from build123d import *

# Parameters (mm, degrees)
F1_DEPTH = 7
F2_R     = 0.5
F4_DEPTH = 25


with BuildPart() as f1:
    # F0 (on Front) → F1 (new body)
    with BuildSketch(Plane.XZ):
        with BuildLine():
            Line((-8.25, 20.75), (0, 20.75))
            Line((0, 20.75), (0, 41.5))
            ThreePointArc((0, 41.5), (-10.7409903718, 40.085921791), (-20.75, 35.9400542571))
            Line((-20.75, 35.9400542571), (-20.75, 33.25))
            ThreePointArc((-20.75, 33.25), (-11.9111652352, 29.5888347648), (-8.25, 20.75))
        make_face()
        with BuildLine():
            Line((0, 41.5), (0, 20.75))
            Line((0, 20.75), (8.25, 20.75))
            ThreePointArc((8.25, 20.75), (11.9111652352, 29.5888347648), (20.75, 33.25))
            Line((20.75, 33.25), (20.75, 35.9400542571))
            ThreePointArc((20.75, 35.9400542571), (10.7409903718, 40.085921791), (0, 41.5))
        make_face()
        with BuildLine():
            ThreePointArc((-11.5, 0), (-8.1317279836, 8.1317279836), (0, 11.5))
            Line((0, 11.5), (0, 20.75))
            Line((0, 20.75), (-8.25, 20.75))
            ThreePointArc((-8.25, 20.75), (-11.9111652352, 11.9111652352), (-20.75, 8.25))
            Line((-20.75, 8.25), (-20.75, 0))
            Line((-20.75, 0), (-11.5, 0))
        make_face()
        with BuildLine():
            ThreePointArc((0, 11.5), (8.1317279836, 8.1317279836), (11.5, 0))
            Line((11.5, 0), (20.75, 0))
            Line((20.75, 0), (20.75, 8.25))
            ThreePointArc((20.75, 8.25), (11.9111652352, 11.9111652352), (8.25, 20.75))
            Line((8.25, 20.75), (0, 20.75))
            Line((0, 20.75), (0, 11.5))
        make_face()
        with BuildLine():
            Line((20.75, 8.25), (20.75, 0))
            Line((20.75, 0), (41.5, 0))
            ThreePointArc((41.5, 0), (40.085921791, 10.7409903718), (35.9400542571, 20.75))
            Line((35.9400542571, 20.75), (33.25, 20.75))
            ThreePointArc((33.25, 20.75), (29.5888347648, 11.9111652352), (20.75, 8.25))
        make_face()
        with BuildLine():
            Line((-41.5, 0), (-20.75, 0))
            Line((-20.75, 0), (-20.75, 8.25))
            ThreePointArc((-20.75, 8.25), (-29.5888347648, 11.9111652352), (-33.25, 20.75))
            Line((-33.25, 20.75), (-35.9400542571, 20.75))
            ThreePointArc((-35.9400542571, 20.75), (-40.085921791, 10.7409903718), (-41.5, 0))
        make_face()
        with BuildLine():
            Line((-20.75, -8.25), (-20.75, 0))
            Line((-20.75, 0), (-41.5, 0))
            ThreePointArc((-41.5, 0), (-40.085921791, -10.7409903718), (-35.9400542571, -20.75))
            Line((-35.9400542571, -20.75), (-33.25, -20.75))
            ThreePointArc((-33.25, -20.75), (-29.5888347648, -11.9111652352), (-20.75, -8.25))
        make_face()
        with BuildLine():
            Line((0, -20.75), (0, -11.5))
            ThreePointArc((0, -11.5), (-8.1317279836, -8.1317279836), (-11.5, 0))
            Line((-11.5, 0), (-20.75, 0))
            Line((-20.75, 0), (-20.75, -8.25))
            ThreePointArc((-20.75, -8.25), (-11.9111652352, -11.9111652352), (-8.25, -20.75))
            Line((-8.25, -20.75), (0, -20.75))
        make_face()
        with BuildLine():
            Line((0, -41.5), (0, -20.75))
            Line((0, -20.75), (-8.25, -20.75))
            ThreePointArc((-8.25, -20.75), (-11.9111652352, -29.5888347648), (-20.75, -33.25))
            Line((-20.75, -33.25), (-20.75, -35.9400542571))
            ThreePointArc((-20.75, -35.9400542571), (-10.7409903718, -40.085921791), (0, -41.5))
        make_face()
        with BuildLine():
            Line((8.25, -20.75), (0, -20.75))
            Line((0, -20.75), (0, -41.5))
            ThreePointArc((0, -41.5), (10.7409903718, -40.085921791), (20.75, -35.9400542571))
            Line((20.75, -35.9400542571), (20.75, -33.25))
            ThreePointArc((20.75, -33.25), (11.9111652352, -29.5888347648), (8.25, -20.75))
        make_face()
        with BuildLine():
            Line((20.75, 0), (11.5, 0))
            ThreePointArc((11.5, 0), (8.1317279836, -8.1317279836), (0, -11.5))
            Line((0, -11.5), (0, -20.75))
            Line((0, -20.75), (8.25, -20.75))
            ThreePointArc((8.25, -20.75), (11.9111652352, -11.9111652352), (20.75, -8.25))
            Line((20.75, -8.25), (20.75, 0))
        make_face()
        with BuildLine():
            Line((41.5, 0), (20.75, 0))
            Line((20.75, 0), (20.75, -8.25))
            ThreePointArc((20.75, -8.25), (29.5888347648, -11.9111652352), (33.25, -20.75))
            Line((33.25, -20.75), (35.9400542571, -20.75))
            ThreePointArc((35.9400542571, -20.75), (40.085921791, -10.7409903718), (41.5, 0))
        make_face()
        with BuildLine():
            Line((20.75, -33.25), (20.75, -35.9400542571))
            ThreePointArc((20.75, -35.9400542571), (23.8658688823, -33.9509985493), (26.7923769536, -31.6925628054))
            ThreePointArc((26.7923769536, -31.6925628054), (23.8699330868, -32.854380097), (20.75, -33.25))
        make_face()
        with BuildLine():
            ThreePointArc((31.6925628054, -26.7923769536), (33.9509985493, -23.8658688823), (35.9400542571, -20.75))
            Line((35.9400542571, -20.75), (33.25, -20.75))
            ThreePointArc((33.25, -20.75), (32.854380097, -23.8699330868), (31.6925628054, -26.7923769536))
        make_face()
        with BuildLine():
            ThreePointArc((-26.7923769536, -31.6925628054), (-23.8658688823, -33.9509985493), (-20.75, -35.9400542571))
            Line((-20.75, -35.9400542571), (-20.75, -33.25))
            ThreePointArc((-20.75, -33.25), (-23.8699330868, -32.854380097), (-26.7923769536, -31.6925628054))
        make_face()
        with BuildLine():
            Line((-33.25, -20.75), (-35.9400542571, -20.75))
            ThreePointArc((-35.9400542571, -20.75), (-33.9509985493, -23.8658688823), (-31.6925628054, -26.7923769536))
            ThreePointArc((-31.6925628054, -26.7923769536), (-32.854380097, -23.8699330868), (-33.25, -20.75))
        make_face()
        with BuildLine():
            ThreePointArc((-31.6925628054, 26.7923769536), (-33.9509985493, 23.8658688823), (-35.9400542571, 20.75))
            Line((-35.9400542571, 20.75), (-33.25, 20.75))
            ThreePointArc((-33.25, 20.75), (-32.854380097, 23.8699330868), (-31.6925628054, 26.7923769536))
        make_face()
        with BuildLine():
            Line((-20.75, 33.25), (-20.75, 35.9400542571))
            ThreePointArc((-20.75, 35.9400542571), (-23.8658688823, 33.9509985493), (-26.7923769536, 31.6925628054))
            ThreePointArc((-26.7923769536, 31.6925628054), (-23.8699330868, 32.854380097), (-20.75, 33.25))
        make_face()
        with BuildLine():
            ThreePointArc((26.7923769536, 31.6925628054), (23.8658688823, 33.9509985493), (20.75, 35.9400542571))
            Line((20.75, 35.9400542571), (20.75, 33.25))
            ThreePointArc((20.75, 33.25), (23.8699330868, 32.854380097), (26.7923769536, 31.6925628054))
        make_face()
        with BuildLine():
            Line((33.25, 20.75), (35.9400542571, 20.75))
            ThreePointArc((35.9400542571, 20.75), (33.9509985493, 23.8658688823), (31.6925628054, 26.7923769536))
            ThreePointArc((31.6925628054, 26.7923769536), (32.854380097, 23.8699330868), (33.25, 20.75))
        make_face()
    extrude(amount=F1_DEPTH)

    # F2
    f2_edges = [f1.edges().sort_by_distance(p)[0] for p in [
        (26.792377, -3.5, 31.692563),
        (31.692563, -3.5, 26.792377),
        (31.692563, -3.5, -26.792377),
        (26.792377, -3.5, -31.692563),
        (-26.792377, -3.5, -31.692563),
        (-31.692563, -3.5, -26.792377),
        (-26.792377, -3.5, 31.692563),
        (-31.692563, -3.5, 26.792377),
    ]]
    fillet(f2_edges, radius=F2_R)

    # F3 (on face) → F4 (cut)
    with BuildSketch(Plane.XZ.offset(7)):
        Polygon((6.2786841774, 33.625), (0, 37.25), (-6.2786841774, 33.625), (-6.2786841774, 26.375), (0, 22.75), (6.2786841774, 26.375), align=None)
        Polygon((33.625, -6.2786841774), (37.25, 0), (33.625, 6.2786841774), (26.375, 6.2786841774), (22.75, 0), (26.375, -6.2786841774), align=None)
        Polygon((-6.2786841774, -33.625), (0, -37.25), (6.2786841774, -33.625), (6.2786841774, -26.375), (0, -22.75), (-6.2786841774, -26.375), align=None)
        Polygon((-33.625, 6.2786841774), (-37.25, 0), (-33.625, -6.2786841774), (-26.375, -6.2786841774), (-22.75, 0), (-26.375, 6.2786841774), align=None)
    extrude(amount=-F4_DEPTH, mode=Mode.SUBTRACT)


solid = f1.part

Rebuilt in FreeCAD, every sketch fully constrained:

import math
import FreeCAD as App
import Part
import Sketcher
Q = App.Units.Quantity


def edges_at(feature, points):
    """Names of the edges that pass closest to the given points."""
    edges = feature.Shape.Edges
    near = lambda p: min(range(len(edges)), key=lambda i: edges[i].distToShape(Part.Vertex(*p))[0])
    return sorted({f"Edge{near(p) + 1}" for p in points})

doc = App.newDocument("Part")
body = doc.addObject("PartDesign::Body", "Body")

sketch1 = doc.addObject("Sketcher::SketchObject", "Sketch")
body.addObject(sketch1)
sketch1.AttachmentSupport = (doc.XZ_Plane, [""])
sketch1.MapMode = "FlatFace"
sketch1.addGeometry([
    Part.ArcOfCircle(Part.Circle(App.Vector(20.75, 20.75, 0), App.Vector(0, 0, 1), 12.5), math.radians(90), math.radians(180)),
    Part.ArcOfCircle(Part.Circle(App.Vector(20.75, 20.75, 0), App.Vector(0, 0, 1), 12.5), math.radians(61.092946), math.radians(90)),
    Part.ArcOfCircle(Part.Circle(App.Vector(0, 0, 0), App.Vector(0, 0, 1), 41.5), math.radians(49.789365), math.radians(60)),
    Part.ArcOfCircle(Part.Circle(App.Vector(0, 0, 0), App.Vector(0, 0, 1), 41.5), math.radians(60), math.radians(90)),
    Part.ArcOfCircle(Part.Circle(App.Vector(0, 0, 0), App.Vector(0, 0, 1), 41.5), math.radians(90), math.radians(120)),
    Part.ArcOfCircle(Part.Circle(App.Vector(0, 0, 0), App.Vector(0, 0, 1), 41.5), math.radians(120), math.radians(130.210635)),
    Part.ArcOfCircle(Part.Circle(App.Vector(-20.75, 20.75, 0), App.Vector(0, 0, 1), 12.5), math.radians(90), math.radians(118.907054)),
    Part.ArcOfCircle(Part.Circle(App.Vector(-20.75, 20.75, 0), App.Vector(0, 0, 1), 12.5), math.radians(0), math.radians(90)),
    Part.ArcOfCircle(Part.Circle(App.Vector(-20.75, 20.75, 0), App.Vector(0, 0, 1), 12.5), math.radians(-90), math.radians(0)),
    Part.ArcOfCircle(Part.Circle(App.Vector(-20.75, 20.75, 0), App.Vector(0, 0, 1), 12.5), math.radians(180), math.radians(270)),
    Part.ArcOfCircle(Part.Circle(App.Vector(-20.75, 20.75, 0), App.Vector(0, 0, 1), 12.5), math.radians(151.092946), math.radians(180)),
    Part.ArcOfCircle(Part.Circle(App.Vector(0, 0, 0), App.Vector(0, 0, 1), 41.5), math.radians(139.789365), math.radians(150)),
    Part.ArcOfCircle(Part.Circle(App.Vector(0, 0, 0), App.Vector(0, 0, 1), 41.5), math.radians(150), math.radians(180)),
    Part.ArcOfCircle(Part.Circle(App.Vector(0, 0, 0), App.Vector(0, 0, 1), 41.5), math.radians(180), math.radians(210)),
    Part.ArcOfCircle(Part.Circle(App.Vector(0, 0, 0), App.Vector(0, 0, 1), 41.5), math.radians(-150), math.radians(-139.789365)),
    Part.ArcOfCircle(Part.Circle(App.Vector(-20.75, -20.75, 0), App.Vector(0, 0, 1), 12.5), math.radians(180), math.radians(208.907054)),
    Part.ArcOfCircle(Part.Circle(App.Vector(-20.75, -20.75, 0), App.Vector(0, 0, 1), 12.5), math.radians(90), math.radians(180)),
    Part.ArcOfCircle(Part.Circle(App.Vector(-20.75, -20.75, 0), App.Vector(0, 0, 1), 12.5), math.radians(0), math.radians(90)),
    Part.ArcOfCircle(Part.Circle(App.Vector(-20.75, -20.75, 0), App.Vector(0, 0, 1), 12.5), math.radians(-90), math.radians(0)),
    Part.ArcOfCircle(Part.Circle(App.Vector(-20.75, -20.75, 0), App.Vector(0, 0, 1), 12.5), math.radians(-118.907054), math.radians(-90)),
    Part.ArcOfCircle(Part.Circle(App.Vector(0, 0, 0), App.Vector(0, 0, 1), 41.5), math.radians(-130.210635), math.radians(-120)),
    Part.ArcOfCircle(Part.Circle(App.Vector(0, 0, 0), App.Vector(0, 0, 1), 41.5), math.radians(-120), math.radians(-90)),
    Part.ArcOfCircle(Part.Circle(App.Vector(0, 0, 0), App.Vector(0, 0, 1), 41.5), math.radians(-90), math.radians(-60)),
    Part.ArcOfCircle(Part.Circle(App.Vector(0, 0, 0), App.Vector(0, 0, 1), 41.5), math.radians(-60), math.radians(-49.789365)),
    Part.ArcOfCircle(Part.Circle(App.Vector(20.75, -20.75, 0), App.Vector(0, 0, 1), 12.5), math.radians(-90), math.radians(-61.092946)),
    Part.ArcOfCircle(Part.Circle(App.Vector(20.75, -20.75, 0), App.Vector(0, 0, 1), 12.5), math.radians(180), math.radians(270)),
    Part.ArcOfCircle(Part.Circle(App.Vector(20.75, -20.75, 0), App.Vector(0, 0, 1), 12.5), math.radians(90), math.radians(180)),
    Part.ArcOfCircle(Part.Circle(App.Vector(20.75, -20.75, 0), App.Vector(0, 0, 1), 12.5), math.radians(0), math.radians(90)),
    Part.ArcOfCircle(Part.Circle(App.Vector(20.75, -20.75, 0), App.Vector(0, 0, 1), 12.5), math.radians(-28.907054), math.radians(0)),
    Part.ArcOfCircle(Part.Circle(App.Vector(0, 0, 0), App.Vector(0, 0, 1), 41.5), math.radians(-40.210635), math.radians(-30)),
    Part.ArcOfCircle(Part.Circle(App.Vector(0, 0, 0), App.Vector(0, 0, 1), 41.5), math.radians(-30), math.radians(0)),
    Part.ArcOfCircle(Part.Circle(App.Vector(0, 0, 0), App.Vector(0, 0, 1), 41.5), math.radians(0), math.radians(30)),
    Part.ArcOfCircle(Part.Circle(App.Vector(0, 0, 0), App.Vector(0, 0, 1), 41.5), math.radians(30), math.radians(40.210635)),
    Part.ArcOfCircle(Part.Circle(App.Vector(20.75, 20.75, 0), App.Vector(0, 0, 1), 12.5), math.radians(0), math.radians(28.907054)),
    Part.ArcOfCircle(Part.Circle(App.Vector(20.75, 20.75, 0), App.Vector(0, 0, 1), 12.5), math.radians(-90), math.radians(0)),
    Part.ArcOfCircle(Part.Circle(App.Vector(20.75, 20.75, 0), App.Vector(0, 0, 1), 12.5), math.radians(180), math.radians(270)),
    Part.ArcOfCircle(Part.Circle(App.Vector(0, 0, 0), App.Vector(0, 0, 1), 11.5), math.radians(180), math.radians(270)),
    Part.ArcOfCircle(Part.Circle(App.Vector(0, 0, 0), App.Vector(0, 0, 1), 11.5), math.radians(90), math.radians(180)),
    Part.ArcOfCircle(Part.Circle(App.Vector(0, 0, 0), App.Vector(0, 0, 1), 11.5), math.radians(0), math.radians(90)),
    Part.ArcOfCircle(Part.Circle(App.Vector(0, 0, 0), App.Vector(0, 0, 1), 11.5), math.radians(-90), math.radians(0)),
], False)
sketch1.addConstraint([
    Sketcher.Constraint("Tangent", 0, 1, 1, 2),
    Sketcher.Constraint("Coincident", 1, 1, 2, 1),
    Sketcher.Constraint("Tangent", 2, 2, 3, 1),
    Sketcher.Constraint("Tangent", 3, 2, 4, 1),
    Sketcher.Constraint("Tangent", 4, 2, 5, 1),
    Sketcher.Constraint("Coincident", 5, 2, 6, 2),
    Sketcher.Constraint("Tangent", 6, 1, 7, 2),
    Sketcher.Constraint("Tangent", 7, 1, 8, 2),
    Sketcher.Constraint("Tangent", 8, 1, 9, 2),
    Sketcher.Constraint("Tangent", 9, 1, 10, 2),
    Sketcher.Constraint("Coincident", 10, 1, 11, 1),
    Sketcher.Constraint("Tangent", 11, 2, 12, 1),
    Sketcher.Constraint("Tangent", 12, 2, 13, 1),
    Sketcher.Constraint("Tangent", 13, 2, 14, 1),
    Sketcher.Constraint("Coincident", 14, 2, 15, 2),
    Sketcher.Constraint("Tangent", 15, 1, 16, 2),
    Sketcher.Constraint("Tangent", 16, 1, 17, 2),
    Sketcher.Constraint("Tangent", 17, 1, 18, 2),
    Sketcher.Constraint("Tangent", 18, 1, 19, 2),
    Sketcher.Constraint("Coincident", 19, 1, 20, 1),
    Sketcher.Constraint("Tangent", 20, 2, 21, 1),
    Sketcher.Constraint("Tangent", 21, 2, 22, 1),
    Sketcher.Constraint("Tangent", 22, 2, 23, 1),
    Sketcher.Constraint("Coincident", 23, 2, 24, 2),
    Sketcher.Constraint("Tangent", 24, 1, 25, 2),
    Sketcher.Constraint("Tangent", 25, 1, 26, 2),
    Sketcher.Constraint("Tangent", 26, 1, 27, 2),
    Sketcher.Constraint("Tangent", 27, 1, 28, 2),
    Sketcher.Constraint("Coincident", 28, 1, 29, 1),
    Sketcher.Constraint("Tangent", 29, 2, 30, 1),
    Sketcher.Constraint("Tangent", 30, 2, 31, 1),
    Sketcher.Constraint("Tangent", 31, 2, 32, 1),
    Sketcher.Constraint("Coincident", 32, 2, 33, 2),
    Sketcher.Constraint("Tangent", 33, 1, 34, 2),
    Sketcher.Constraint("Tangent", 34, 1, 35, 2),
    Sketcher.Constraint("Tangent", 35, 1, 0, 2),
    Sketcher.Constraint("Tangent", 36, 1, 37, 2),
    Sketcher.Constraint("Tangent", 37, 1, 38, 2),
    Sketcher.Constraint("Tangent", 38, 1, 39, 2),
    Sketcher.Constraint("Tangent", 39, 1, 36, 2),
    Sketcher.Constraint("Coincident", 2, 3, -1, 1),
    Sketcher.Constraint("Coincident", 4, 3, -1, 1),
    Sketcher.Constraint("Coincident", 11, 3, -1, 1),
    Sketcher.Constraint("Coincident", 13, 3, -1, 1),
    Sketcher.Constraint("Coincident", 20, 3, -1, 1),
    Sketcher.Constraint("Coincident", 22, 3, -1, 1),
    Sketcher.Constraint("Coincident", 29, 3, -1, 1),
    Sketcher.Constraint("Coincident", 31, 3, -1, 1),
    Sketcher.Constraint("Coincident", 36, 3, -1, 1),
    Sketcher.Constraint("Coincident", 8, 3, 6, 3),
    Sketcher.Constraint("Coincident", 10, 3, 6, 3),
    Sketcher.Constraint("Coincident", 17, 3, 15, 3),
    Sketcher.Constraint("Coincident", 19, 3, 15, 3),
    Sketcher.Constraint("Coincident", 26, 3, 24, 3),
    Sketcher.Constraint("Coincident", 28, 3, 24, 3),
    Sketcher.Constraint("Coincident", 33, 3, 0, 3),
    Sketcher.Constraint("Equal", 0, 1),
    Sketcher.Constraint("Equal", 4, 5),
    Sketcher.Constraint("Equal", 1, 6),
    Sketcher.Constraint("Equal", 5, 11),
    Sketcher.Constraint("Equal", 13, 14),
    Sketcher.Constraint("Equal", 10, 15),
    Sketcher.Constraint("Equal", 14, 20),
    Sketcher.Constraint("Equal", 22, 23),
    Sketcher.Constraint("Equal", 19, 24),
    Sketcher.Constraint("Equal", 23, 29),
    Sketcher.Constraint("Equal", 31, 32),
    Sketcher.Constraint("Equal", 28, 33),
    Sketcher.Constraint("Equal", 36, 37),
    Sketcher.Constraint("Symmetric", 0, 3, 15, 3, -1, 1),
    Sketcher.Constraint("Symmetric", 6, 3, 24, 3, -1, 1),
    Sketcher.Constraint("Symmetric", 0, 3, 6, 3, -2),
    Sketcher.Constraint("PointOnObject", 3, 2, -2),
    Sketcher.Constraint("PointOnObject", 12, 2, -1),
    Sketcher.Constraint("PointOnObject", 21, 2, -2),
    Sketcher.Constraint("PointOnObject", 30, 2, -1),
    Sketcher.Constraint("PointOnObject", 36, 1, -1),
    Sketcher.Constraint("PointOnObject", 37, 1, -2),
    Sketcher.Constraint("PointOnObject", 38, 1, -1),
    Sketcher.Constraint("PointOnObject", 39, 1, -2),
    Sketcher.Constraint("Horizontal", 2, 2, 4, 2),
    Sketcher.Constraint("Horizontal", 35, 3, 7, 1),
    Sketcher.Constraint("Horizontal", 7, 1, 9, 1),
    Sketcher.Constraint("Horizontal", 9, 1, 11, 2),
    Sketcher.Constraint("Horizontal", 28, 3, 13, 2),
    Sketcher.Constraint("Horizontal", 13, 2, 15, 1),
    Sketcher.Constraint("Horizontal", 15, 1, 17, 1),
    Sketcher.Constraint("Horizontal", 20, 2, 22, 2),
    Sketcher.Constraint("Horizontal", 17, 1, 25, 1),
    Sketcher.Constraint("Horizontal", 25, 1, 27, 1),
    Sketcher.Constraint("Horizontal", 27, 1, 29, 2),
    Sketcher.Constraint("Horizontal", 11, 2, 31, 2),
    Sketcher.Constraint("Horizontal", 31, 2, 33, 1),
    Sketcher.Constraint("Horizontal", 33, 1, 35, 1),
    Sketcher.Constraint("Vertical", 35, 3, 0, 1),
    Sketcher.Constraint("Vertical", 0, 1, 2, 2),
    Sketcher.Constraint("Vertical", 4, 2, 6, 1),
    Sketcher.Constraint("Vertical", 6, 1, 8, 1),
    Sketcher.Constraint("Vertical", 8, 1, 16, 1),
    Sketcher.Constraint("Vertical", 16, 1, 18, 1),
    Sketcher.Constraint("Vertical", 18, 1, 20, 2),
    Sketcher.Constraint("Vertical", 22, 2, 24, 1),
    Sketcher.Constraint("Vertical", 24, 1, 26, 1),
    Sketcher.Constraint("Vertical", 26, 1, 34, 1),
    Sketcher.Constraint("Radius", 0, Q("12.5 mm")),
    Sketcher.Constraint("Radius", 2, Q("41.5 mm")),
    Sketcher.Constraint("Radius", 36, Q("11.5 mm")),
    Sketcher.Constraint("DistanceX", -1, 1, 0, 3, Q("20.75 mm")),
    Sketcher.Constraint("DistanceY", -1, 1, 0, 3, Q("20.75 mm")),
])
pad1 = doc.addObject("PartDesign::Pad", "Pad")
body.addObject(pad1)
pad1.Profile = sketch1
pad1.Length = 7
doc.recompute()

fillet = doc.addObject("PartDesign::Fillet", "Fillet")
body.addObject(fillet)
fillet.Base = (pad1, edges_at(pad1, [
    (26.792, -3.5, 31.693),
    (31.693, -3.5, 26.792),
    (31.693, -3.5, -26.792),
    (26.792, -3.5, -31.693),
    (-26.792, -3.5, -31.693),
    (-31.693, -3.5, -26.792),
    (-26.792, -3.5, 31.693),
    (-31.693, -3.5, 26.792),
]))
fillet.Radius = 0.5

sketch2 = doc.addObject("Sketcher::SketchObject", "Sketch001")
body.addObject(sketch2)
sketch2.AttachmentSupport = (doc.XZ_Plane, [""])
sketch2.MapMode = "FlatFace"
sketch2.AttachmentOffset = App.Placement(App.Vector(0, 0, 7), App.Rotation())
sketch2.addGeometry([
    Part.LineSegment(App.Vector(6.278684, 33.625, 0), App.Vector(0, 37.25, 0)),
    Part.LineSegment(App.Vector(0, 37.25, 0), App.Vector(-6.278684, 33.625, 0)),
    Part.LineSegment(App.Vector(-6.278684, 33.625, 0), App.Vector(-6.278684, 26.375, 0)),
    Part.LineSegment(App.Vector(-6.278684, 26.375, 0), App.Vector(0, 22.75, 0)),
    Part.LineSegment(App.Vector(0, 22.75, 0), App.Vector(6.278684, 26.375, 0)),
    Part.LineSegment(App.Vector(6.278684, 26.375, 0), App.Vector(6.278684, 33.625, 0)),
    Part.LineSegment(App.Vector(33.625, -6.278684, 0), App.Vector(37.25, 0, 0)),
    Part.LineSegment(App.Vector(37.25, 0, 0), App.Vector(33.625, 6.278684, 0)),
    Part.LineSegment(App.Vector(33.625, 6.278684, 0), App.Vector(26.375, 6.278684, 0)),
    Part.LineSegment(App.Vector(26.375, 6.278684, 0), App.Vector(22.75, 0, 0)),
    Part.LineSegment(App.Vector(22.75, 0, 0), App.Vector(26.375, -6.278684, 0)),
    Part.LineSegment(App.Vector(26.375, -6.278684, 0), App.Vector(33.625, -6.278684, 0)),
    Part.LineSegment(App.Vector(-6.278684, -33.625, 0), App.Vector(0, -37.25, 0)),
    Part.LineSegment(App.Vector(0, -37.25, 0), App.Vector(6.278684, -33.625, 0)),
    Part.LineSegment(App.Vector(6.278684, -33.625, 0), App.Vector(6.278684, -26.375, 0)),
    Part.LineSegment(App.Vector(6.278684, -26.375, 0), App.Vector(0, -22.75, 0)),
    Part.LineSegment(App.Vector(0, -22.75, 0), App.Vector(-6.278684, -26.375, 0)),
    Part.LineSegment(App.Vector(-6.278684, -26.375, 0), App.Vector(-6.278684, -33.625, 0)),
    Part.LineSegment(App.Vector(-33.625, 6.278684, 0), App.Vector(-37.25, 0, 0)),
    Part.LineSegment(App.Vector(-37.25, 0, 0), App.Vector(-33.625, -6.278684, 0)),
    Part.LineSegment(App.Vector(-33.625, -6.278684, 0), App.Vector(-26.375, -6.278684, 0)),
    Part.LineSegment(App.Vector(-26.375, -6.278684, 0), App.Vector(-22.75, 0, 0)),
    Part.LineSegment(App.Vector(-22.75, 0, 0), App.Vector(-26.375, 6.278684, 0)),
    Part.LineSegment(App.Vector(-26.375, 6.278684, 0), App.Vector(-33.625, 6.278684, 0)),
], False)
sketch2.addConstraint([
    Sketcher.Constraint("Coincident", 0, 2, 1, 1),
    Sketcher.Constraint("Coincident", 1, 2, 2, 1),
    Sketcher.Constraint("Coincident", 2, 2, 3, 1),
    Sketcher.Constraint("Coincident", 3, 2, 4, 1),
    Sketcher.Constraint("Coincident", 4, 2, 5, 1),
    Sketcher.Constraint("Coincident", 5, 2, 0, 1),
    Sketcher.Constraint("Coincident", 6, 2, 7, 1),
    Sketcher.Constraint("Coincident", 7, 2, 8, 1),
    Sketcher.Constraint("Coincident", 8, 2, 9, 1),
    Sketcher.Constraint("Coincident", 9, 2, 10, 1),
    Sketcher.Constraint("Coincident", 10, 2, 11, 1),
    Sketcher.Constraint("Coincident", 11, 2, 6, 1),
    Sketcher.Constraint("Coincident", 12, 2, 13, 1),
    Sketcher.Constraint("Coincident", 13, 2, 14, 1),
    Sketcher.Constraint("Coincident", 14, 2, 15, 1),
    Sketcher.Constraint("Coincident", 15, 2, 16, 1),
    Sketcher.Constraint("Coincident", 16, 2, 17, 1),
    Sketcher.Constraint("Coincident", 17, 2, 12, 1),
    Sketcher.Constraint("Coincident", 18, 2, 19, 1),
    Sketcher.Constraint("Coincident", 19, 2, 20, 1),
    Sketcher.Constraint("Coincident", 20, 2, 21, 1),
    Sketcher.Constraint("Coincident", 21, 2, 22, 1),
    Sketcher.Constraint("Coincident", 22, 2, 23, 1),
    Sketcher.Constraint("Coincident", 23, 2, 18, 1),
    Sketcher.Constraint("Vertical", 2),
    Sketcher.Constraint("Vertical", 5),
    Sketcher.Constraint("Horizontal", 8),
    Sketcher.Constraint("Horizontal", 11),
    Sketcher.Constraint("Vertical", 14),
    Sketcher.Constraint("Vertical", 17),
    Sketcher.Constraint("Horizontal", 20),
    Sketcher.Constraint("Horizontal", 23),
    Sketcher.Constraint("Symmetric", 0, 2, 12, 2, -1, 1),
    Sketcher.Constraint("Symmetric", 1, 2, 13, 2, -1, 1),
    Sketcher.Constraint("Symmetric", 3, 2, 15, 2, -1, 1),
    Sketcher.Constraint("Symmetric", 4, 2, 16, 2, -1, 1),
    Sketcher.Constraint("Symmetric", 6, 2, 18, 2, -1, 1),
    Sketcher.Constraint("Symmetric", 7, 2, 19, 2, -1, 1),
    Sketcher.Constraint("Symmetric", 9, 2, 21, 2, -1, 1),
    Sketcher.Constraint("Symmetric", 10, 2, 22, 2, -1, 1),
    Sketcher.Constraint("Symmetric", 2, 2, 4, 2, -2),
    Sketcher.Constraint("Symmetric", 11, 2, 19, 2, -2),
    Sketcher.Constraint("PointOnObject", 0, 2, -2),
    Sketcher.Constraint("PointOnObject", 3, 2, -2),
    Sketcher.Constraint("PointOnObject", 6, 2, -1),
    Sketcher.Constraint("PointOnObject", 9, 2, -1),
    Sketcher.Constraint("Parallel", 0, 3),
    Sketcher.Constraint("Parallel", 1, 4),
    Sketcher.Constraint("Perpendicular", 3, 6),
    Sketcher.Constraint("Parallel", 6, 9),
    Sketcher.Constraint("Parallel", 7, 10),
    Sketcher.Constraint("Perpendicular", 9, 12),
    Sketcher.Constraint("Parallel", 12, 15),
    Sketcher.Constraint("Perpendicular", 15, 18),
    Sketcher.Constraint("Parallel", 18, 21),
    Sketcher.Constraint("Equal", 23, 2),
    Sketcher.Constraint("Equal", 4, 6),
    Sketcher.Constraint("Angle", 0, Q("150 deg")),
    Sketcher.Constraint("DistanceX", 8, 2, 8, 1, Q("7.25 mm")),
    Sketcher.Constraint("DistanceY", 3, 2, 0, 2, Q("14.5 mm")),
    Sketcher.Constraint("DistanceY", -1, 1, 0, 2, Q("37.25 mm")),
    Sketcher.Constraint("DistanceX", -1, 1, 6, 2, Q("37.25 mm")),
])
pocket1 = doc.addObject("PartDesign::Pocket", "Pocket")
body.addObject(pocket1)
pocket1.Profile = sketch2
pocket1.Length = 25

doc.recompute()
